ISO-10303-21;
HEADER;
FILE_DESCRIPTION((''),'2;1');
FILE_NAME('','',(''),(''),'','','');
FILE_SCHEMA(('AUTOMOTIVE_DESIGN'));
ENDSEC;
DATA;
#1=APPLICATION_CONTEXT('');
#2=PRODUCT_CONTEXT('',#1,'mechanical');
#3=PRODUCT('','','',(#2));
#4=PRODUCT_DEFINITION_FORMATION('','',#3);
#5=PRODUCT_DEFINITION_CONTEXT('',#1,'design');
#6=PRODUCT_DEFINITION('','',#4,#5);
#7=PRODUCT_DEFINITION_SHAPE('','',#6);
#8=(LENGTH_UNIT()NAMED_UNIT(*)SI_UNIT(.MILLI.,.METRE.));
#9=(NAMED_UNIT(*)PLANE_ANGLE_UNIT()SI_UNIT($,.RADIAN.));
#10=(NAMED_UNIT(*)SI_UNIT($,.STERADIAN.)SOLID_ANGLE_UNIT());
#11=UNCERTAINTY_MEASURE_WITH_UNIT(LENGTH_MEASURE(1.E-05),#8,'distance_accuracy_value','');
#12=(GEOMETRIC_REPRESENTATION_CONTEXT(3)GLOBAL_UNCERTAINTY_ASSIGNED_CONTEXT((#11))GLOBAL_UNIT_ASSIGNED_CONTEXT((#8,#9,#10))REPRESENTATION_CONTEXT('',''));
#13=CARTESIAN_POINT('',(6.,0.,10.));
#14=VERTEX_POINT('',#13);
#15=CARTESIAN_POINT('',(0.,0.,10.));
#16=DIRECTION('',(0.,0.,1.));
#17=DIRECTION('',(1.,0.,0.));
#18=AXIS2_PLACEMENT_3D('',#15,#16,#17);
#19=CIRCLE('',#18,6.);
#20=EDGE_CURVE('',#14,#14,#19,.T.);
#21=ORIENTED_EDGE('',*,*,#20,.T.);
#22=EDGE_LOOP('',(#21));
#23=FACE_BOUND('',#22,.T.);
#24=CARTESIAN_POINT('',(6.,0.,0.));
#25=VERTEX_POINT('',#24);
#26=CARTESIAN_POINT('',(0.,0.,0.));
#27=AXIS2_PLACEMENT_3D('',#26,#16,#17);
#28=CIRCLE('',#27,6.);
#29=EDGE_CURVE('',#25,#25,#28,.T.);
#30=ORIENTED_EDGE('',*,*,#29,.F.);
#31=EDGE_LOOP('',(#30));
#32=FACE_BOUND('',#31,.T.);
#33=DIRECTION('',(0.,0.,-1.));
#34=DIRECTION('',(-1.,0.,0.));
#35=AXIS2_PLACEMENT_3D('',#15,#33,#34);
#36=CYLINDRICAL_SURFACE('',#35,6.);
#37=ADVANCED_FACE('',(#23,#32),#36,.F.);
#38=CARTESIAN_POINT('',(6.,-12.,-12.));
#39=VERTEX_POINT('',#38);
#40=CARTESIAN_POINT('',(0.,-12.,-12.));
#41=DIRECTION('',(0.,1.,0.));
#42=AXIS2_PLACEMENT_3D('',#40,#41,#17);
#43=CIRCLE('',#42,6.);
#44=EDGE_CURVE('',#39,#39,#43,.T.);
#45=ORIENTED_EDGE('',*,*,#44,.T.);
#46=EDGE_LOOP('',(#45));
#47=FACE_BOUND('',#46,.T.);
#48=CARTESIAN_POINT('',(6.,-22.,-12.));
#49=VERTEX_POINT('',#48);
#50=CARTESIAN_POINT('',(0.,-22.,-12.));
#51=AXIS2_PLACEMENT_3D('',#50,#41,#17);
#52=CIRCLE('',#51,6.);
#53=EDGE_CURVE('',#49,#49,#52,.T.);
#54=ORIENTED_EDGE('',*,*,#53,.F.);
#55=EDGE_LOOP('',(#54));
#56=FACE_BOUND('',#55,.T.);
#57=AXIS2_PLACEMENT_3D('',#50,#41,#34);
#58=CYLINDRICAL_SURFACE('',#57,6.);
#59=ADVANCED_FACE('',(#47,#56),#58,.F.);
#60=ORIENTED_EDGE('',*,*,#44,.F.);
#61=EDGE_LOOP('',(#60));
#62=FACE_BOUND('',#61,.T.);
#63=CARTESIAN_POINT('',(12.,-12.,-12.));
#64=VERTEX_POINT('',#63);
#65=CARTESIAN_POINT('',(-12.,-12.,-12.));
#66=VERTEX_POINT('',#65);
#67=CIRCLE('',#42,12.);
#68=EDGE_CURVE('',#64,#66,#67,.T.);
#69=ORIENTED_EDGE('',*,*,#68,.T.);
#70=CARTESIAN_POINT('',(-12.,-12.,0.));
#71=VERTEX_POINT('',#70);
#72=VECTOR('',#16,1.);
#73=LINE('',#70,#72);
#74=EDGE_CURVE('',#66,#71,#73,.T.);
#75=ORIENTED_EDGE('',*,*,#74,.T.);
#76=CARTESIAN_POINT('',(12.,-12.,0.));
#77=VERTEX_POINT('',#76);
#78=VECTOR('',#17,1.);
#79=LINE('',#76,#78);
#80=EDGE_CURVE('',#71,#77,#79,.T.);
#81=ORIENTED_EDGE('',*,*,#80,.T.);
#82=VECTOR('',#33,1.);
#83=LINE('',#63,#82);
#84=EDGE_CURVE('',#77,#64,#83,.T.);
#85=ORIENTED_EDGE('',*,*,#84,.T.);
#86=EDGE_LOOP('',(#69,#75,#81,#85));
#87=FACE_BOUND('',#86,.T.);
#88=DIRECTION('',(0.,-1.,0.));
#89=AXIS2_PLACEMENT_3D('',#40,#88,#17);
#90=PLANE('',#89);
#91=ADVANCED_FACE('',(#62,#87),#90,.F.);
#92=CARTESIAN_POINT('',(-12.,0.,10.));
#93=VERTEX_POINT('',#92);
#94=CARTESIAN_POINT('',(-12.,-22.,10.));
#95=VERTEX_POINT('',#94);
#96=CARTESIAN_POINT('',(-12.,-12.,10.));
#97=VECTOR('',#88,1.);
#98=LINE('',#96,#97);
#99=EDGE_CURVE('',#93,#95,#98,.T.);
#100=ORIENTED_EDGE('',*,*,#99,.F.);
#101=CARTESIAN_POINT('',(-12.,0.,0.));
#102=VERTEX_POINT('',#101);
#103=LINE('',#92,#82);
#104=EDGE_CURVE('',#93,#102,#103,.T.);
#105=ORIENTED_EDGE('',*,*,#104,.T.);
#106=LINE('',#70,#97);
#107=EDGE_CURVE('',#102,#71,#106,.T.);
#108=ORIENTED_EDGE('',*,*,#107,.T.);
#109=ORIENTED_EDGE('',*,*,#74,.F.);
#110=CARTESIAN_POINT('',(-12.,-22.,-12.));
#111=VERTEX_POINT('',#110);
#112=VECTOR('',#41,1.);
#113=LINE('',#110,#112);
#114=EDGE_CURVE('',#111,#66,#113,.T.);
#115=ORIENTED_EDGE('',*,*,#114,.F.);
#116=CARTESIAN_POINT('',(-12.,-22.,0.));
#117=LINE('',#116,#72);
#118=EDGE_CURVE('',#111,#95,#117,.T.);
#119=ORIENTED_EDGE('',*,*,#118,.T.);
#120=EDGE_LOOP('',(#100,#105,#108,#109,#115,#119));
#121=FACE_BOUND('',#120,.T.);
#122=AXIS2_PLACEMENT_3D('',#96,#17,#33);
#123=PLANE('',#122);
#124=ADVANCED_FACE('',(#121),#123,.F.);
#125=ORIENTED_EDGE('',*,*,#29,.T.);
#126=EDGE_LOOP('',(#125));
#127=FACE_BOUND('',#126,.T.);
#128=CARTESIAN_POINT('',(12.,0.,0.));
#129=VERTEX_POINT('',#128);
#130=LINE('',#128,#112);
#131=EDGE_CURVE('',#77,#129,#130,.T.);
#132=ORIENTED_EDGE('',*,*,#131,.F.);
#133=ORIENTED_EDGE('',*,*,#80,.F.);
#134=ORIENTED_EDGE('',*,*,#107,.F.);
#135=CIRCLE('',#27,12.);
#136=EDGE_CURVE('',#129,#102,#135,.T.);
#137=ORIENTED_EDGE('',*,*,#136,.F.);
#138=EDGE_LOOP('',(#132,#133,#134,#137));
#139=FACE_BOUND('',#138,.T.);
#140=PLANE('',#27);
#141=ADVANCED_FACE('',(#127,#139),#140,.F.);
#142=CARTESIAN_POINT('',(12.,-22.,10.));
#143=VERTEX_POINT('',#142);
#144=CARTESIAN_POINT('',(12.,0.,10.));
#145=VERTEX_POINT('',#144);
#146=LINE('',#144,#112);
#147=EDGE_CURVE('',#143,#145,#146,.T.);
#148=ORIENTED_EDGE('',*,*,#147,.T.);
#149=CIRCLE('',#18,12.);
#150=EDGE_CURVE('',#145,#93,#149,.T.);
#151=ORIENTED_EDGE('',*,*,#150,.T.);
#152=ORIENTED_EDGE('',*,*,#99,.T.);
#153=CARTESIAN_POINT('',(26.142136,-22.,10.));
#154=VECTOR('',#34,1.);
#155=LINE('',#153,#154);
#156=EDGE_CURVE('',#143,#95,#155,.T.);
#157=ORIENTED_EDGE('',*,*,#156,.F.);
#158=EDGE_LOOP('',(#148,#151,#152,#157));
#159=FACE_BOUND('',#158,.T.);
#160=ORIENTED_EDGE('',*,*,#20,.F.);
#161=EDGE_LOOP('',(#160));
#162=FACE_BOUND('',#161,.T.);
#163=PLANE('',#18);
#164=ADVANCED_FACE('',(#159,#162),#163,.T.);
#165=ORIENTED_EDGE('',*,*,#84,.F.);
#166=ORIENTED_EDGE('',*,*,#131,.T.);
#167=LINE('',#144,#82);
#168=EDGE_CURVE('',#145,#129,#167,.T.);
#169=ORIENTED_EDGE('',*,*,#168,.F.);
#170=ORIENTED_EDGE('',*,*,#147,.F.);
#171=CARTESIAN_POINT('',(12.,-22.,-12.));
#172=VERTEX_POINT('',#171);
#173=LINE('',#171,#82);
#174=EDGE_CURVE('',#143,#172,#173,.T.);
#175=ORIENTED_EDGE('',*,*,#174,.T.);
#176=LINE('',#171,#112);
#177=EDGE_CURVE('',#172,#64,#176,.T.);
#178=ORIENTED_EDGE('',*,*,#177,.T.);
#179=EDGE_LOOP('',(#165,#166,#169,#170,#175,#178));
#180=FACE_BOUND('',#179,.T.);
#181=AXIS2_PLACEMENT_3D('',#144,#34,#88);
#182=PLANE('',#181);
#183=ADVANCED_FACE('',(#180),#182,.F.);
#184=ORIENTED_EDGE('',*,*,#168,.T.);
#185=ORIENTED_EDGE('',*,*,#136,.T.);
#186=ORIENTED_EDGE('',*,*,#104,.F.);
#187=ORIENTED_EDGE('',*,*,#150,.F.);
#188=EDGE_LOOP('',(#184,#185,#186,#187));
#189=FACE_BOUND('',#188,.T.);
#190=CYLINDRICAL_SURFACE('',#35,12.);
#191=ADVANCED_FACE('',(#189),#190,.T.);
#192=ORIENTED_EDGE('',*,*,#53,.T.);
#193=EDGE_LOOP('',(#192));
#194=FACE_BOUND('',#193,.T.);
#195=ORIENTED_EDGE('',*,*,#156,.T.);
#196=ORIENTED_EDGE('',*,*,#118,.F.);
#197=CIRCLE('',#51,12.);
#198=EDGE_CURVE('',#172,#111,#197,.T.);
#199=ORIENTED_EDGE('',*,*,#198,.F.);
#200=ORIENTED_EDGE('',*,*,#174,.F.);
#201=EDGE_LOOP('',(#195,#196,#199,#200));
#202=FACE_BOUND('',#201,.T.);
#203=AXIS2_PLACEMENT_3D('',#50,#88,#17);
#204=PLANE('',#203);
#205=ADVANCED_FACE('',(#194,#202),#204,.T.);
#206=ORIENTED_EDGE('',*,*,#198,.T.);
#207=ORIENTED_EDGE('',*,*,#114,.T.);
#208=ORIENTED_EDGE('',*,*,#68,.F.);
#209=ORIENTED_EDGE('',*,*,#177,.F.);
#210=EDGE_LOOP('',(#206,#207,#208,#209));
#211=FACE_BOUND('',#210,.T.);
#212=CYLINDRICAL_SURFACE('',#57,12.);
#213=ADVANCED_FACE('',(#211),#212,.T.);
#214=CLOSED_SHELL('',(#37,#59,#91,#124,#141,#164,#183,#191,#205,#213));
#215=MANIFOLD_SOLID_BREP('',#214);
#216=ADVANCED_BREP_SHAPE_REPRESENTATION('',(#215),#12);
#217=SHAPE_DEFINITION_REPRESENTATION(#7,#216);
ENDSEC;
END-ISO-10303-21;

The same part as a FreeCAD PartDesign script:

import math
import FreeCAD as App
import Part
import Sketcher

V = App.Vector

doc = App.newDocument("Part")
body = doc.addObject("PartDesign::Body", "Body")

# Sketch on XY plane
sketch1 = body.newObject("Sketcher::SketchObject", "Sketch")
sketch1.AttachmentSupport = (doc.getObject("XY_Plane"), [""])
sketch1.MapMode = "FlatFace"
sketch1.addGeometry(Part.LineSegment(V(12, -12, 0), V(12, 0, 0)), False)
sketch1.addGeometry(Part.ArcOfCircle(Part.Circle(V(0, 0, 0), V(0, 0, 1), 12), math.radians(0), math.radians(180)), False)
sketch1.addGeometry(Part.LineSegment(V(-12, 0, 0), V(-12, -12, 0)), False)
sketch1.addGeometry(Part.LineSegment(V(-12, -12, 0), V(12, -12, 0)), False)
sketch1.addGeometry(Part.Circle(V(0, 0, 0), V(0, 0, 1), 6), False)
sketch1.addConstraint(Sketcher.Constraint("Tangent", 0, 2, 1, 1))
sketch1.addConstraint(Sketcher.Constraint("Tangent", 1, 2, 2, 1))
sketch1.addConstraint(Sketcher.Constraint("Coincident", 2, 2, 3, 1))
sketch1.addConstraint(Sketcher.Constraint("Coincident", 3, 2, 0, 1))
sketch1.addConstraint(Sketcher.Constraint("Vertical", 0))
sketch1.addConstraint(Sketcher.Constraint("Vertical", 2))
sketch1.addConstraint(Sketcher.Constraint("Horizontal", 3))
sketch1.addConstraint(Sketcher.Constraint("Coincident", 1, 3, -1, 1))
sketch1.addConstraint(Sketcher.Constraint("Coincident", 4, 3, -1, 1))
sketch1.addConstraint(Sketcher.Constraint("Diameter", 4, 12.0))
sketch1.addConstraint(Sketcher.Constraint("Radius", 1, 12.0))
sketch1.addConstraint(Sketcher.Constraint("DistanceY", 0, 1, 0, 2, 12.0))
pad1 = body.newObject("PartDesign::Pad", "Pad")
pad1.Profile = sketch1
pad1.Length = 10

# Sketch on YZ plane
sketch2 = body.newObject("Sketcher::SketchObject", "Sketch001")
sketch2.AttachmentSupport = (doc.getObject("YZ_Plane"), [""])
sketch2.MapMode = "FlatFace"
sketch2.AttachmentOffset = App.Placement(V(0, 0, -12), App.Rotation())
sketch2.addGeometry(Part.LineSegment(V(-12, 0, 0), V(-22, 10, 0)), False)
sketch2.addGeometry(Part.LineSegment(V(-22, 10, 0), V(-12, 10, 0)), False)
sketch2.addGeometry(Part.LineSegment(V(-12, 10, 0), V(-12, 0, 0)), False)
sketch2.addConstraint(Sketcher.Constraint("Coincident", 0, 2, 1, 1))
sketch2.addConstraint(Sketcher.Constraint("Coincident", 1, 2, 2, 1))
sketch2.addConstraint(Sketcher.Constraint("Coincident", 2, 2, 0, 1))
sketch2.addConstraint(Sketcher.Constraint("Horizontal", 1))
sketch2.addConstraint(Sketcher.Constraint("Vertical", 2))
sketch2.addConstraint(Sketcher.Constraint("PointOnObject", 2, 2, -1))
sketch2.addConstraint(Sketcher.Constraint("Equal", 1, 2))
sketch2.addConstraint(Sketcher.Constraint("DistanceX", 1, 1, 1, 2, 10.0))
sketch2.addConstraint(Sketcher.Constraint("DistanceX", 0, 2, -1, 1, 22.0))
pad2 = body.newObject("PartDesign::Pad", "Pad001")
pad2.Profile = sketch2
pad2.Length = 24
body2 = doc.addObject("PartDesign::Body", "Body001")
doc.recompute()

body2.BaseFeature = body
doc.recompute()

mirroring = doc.addObject("Part::Mirroring", "Mirroring")
mirroring.Source = body
mirroring.Base = V(26.142136, -12, 0)
mirroring.Normal = V(0, -0.707106781, -0.707106781)
body3 = doc.addObject("PartDesign::Body", "Body002")
body3.BaseFeature = mirroring
boolean = body2.newObject("PartDesign::Boolean", "Boolean")
boolean.Type = "Fuse"
boolean.addObjects([body3])
doc.recompute()
mirroring.Visibility = False

doc.recompute()
